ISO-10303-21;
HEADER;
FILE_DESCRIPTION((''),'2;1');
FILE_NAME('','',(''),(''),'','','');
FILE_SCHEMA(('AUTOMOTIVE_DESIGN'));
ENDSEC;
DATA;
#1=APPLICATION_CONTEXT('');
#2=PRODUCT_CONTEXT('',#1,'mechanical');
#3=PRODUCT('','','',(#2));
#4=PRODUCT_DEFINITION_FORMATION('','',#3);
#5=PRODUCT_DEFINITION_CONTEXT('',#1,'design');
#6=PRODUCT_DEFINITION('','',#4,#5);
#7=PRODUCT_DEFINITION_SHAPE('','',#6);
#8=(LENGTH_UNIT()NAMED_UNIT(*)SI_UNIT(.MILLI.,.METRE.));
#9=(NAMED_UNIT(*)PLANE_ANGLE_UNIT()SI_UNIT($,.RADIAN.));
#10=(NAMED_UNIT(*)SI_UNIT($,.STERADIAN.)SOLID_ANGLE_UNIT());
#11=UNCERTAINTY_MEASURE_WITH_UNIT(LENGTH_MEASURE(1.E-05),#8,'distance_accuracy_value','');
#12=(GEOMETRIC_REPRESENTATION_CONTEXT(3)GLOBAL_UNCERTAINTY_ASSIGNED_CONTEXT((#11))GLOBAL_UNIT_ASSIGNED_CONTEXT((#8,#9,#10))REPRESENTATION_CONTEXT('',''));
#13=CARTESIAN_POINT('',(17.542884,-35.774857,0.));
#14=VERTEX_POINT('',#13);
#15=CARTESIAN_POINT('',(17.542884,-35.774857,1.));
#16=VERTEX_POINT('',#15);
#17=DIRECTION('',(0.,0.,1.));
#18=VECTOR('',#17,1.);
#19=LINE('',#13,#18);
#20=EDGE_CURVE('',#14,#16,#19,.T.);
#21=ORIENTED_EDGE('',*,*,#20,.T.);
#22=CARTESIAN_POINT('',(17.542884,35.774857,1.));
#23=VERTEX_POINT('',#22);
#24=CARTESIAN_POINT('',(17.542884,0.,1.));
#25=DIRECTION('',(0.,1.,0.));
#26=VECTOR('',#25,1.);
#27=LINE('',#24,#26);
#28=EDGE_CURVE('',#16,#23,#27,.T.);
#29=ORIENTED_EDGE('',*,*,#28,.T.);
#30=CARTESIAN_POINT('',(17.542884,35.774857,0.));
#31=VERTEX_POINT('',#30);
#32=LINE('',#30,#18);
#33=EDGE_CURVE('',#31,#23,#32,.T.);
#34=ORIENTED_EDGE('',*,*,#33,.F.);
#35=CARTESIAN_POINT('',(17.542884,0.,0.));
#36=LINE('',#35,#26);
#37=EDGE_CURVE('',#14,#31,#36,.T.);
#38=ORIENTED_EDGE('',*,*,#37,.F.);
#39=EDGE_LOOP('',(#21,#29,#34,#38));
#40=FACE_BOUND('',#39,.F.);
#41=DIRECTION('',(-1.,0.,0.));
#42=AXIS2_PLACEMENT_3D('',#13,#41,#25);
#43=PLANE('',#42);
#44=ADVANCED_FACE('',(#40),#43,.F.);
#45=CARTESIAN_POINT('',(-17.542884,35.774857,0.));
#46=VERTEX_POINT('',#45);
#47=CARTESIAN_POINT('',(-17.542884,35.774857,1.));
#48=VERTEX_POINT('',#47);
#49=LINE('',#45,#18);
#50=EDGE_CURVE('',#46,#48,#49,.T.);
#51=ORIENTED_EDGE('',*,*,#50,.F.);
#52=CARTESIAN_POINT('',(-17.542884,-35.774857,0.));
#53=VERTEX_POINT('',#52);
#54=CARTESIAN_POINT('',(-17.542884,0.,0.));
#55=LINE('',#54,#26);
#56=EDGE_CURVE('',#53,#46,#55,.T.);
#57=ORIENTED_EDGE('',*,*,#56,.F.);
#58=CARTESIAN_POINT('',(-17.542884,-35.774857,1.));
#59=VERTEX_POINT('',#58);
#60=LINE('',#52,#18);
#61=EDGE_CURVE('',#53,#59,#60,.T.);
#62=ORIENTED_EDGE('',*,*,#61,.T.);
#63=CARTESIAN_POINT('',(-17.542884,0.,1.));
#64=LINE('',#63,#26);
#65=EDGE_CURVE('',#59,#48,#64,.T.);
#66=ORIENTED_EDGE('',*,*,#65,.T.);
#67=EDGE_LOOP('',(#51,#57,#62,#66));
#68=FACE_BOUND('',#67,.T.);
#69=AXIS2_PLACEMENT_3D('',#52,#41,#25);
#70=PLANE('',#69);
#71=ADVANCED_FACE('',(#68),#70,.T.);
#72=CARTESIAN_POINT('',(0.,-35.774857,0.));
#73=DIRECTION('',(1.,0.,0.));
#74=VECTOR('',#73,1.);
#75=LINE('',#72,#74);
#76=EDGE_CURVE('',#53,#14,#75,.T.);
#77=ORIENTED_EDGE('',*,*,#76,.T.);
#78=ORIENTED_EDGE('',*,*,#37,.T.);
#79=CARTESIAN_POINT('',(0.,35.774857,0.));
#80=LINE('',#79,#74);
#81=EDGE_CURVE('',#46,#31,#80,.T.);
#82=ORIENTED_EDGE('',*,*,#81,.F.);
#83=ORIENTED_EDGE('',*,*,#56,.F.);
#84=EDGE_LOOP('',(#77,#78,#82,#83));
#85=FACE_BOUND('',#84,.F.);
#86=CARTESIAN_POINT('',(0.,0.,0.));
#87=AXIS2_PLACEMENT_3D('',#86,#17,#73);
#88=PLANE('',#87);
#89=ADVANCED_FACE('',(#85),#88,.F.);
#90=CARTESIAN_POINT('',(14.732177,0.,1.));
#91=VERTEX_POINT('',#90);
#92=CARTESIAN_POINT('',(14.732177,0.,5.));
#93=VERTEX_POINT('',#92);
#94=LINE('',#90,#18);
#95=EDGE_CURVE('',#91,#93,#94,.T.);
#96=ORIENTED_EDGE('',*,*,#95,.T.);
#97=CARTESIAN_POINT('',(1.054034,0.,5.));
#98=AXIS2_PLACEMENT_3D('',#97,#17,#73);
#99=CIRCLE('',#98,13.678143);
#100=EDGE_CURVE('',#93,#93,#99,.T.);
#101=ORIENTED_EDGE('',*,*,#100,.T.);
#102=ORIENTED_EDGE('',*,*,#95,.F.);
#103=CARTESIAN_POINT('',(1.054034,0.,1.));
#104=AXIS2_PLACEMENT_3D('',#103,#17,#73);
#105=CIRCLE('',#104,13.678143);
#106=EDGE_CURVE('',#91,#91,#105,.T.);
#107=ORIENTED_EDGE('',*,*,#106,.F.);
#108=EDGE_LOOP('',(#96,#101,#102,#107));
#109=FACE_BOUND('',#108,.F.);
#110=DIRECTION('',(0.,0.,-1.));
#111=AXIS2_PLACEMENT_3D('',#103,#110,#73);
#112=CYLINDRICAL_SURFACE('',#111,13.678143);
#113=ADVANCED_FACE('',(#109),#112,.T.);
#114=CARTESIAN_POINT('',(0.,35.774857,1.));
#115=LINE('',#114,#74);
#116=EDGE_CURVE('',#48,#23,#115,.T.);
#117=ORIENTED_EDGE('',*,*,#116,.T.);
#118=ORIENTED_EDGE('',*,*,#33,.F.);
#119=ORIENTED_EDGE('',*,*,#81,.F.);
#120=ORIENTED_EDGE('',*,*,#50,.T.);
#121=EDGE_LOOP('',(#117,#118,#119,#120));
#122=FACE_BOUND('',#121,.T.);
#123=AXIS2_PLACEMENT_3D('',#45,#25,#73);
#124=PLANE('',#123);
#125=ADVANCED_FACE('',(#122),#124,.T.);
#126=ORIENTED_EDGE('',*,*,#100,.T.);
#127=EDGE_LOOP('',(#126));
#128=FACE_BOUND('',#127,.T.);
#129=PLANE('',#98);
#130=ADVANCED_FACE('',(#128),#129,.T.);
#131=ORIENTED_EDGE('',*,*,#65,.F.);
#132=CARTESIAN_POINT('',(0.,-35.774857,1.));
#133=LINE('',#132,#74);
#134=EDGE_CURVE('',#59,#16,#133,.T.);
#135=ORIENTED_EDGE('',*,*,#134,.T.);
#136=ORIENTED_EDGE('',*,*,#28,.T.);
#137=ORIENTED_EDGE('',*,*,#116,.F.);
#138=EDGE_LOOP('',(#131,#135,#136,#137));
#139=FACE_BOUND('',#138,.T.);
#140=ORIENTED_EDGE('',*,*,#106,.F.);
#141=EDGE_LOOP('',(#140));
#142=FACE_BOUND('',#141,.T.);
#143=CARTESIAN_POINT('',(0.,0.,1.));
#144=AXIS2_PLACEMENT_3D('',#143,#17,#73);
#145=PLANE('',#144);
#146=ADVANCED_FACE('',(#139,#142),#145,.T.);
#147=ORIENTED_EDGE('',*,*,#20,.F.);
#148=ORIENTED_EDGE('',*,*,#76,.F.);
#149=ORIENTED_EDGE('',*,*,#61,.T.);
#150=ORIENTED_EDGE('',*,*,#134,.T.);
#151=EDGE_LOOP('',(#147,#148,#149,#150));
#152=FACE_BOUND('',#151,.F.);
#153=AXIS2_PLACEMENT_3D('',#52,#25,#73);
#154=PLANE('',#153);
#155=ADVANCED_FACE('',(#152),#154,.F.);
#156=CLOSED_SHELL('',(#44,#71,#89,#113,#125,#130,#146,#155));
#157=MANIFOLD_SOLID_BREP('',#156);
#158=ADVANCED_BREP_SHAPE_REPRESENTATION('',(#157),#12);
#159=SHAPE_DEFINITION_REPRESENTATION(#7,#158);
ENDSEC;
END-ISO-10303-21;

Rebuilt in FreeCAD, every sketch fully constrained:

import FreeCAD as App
import Part
import Sketcher
from FreeCAD import Vector

doc = App.newDocument("Part")
body = doc.addObject("PartDesign::Body", "Body")

# Sketch on XY plane
sketch1 = body.newObject("Sketcher::SketchObject", "Sketch")
sketch1.AttachmentSupport = (doc.getObject("XY_Plane"), [""])
sketch1.MapMode = "FlatFace"
sketch1.addGeometry(Part.LineSegment(Vector(-18, 36, 0), Vector(-18, -36, 0)), False)
sketch1.addGeometry(Part.LineSegment(Vector(-18, -36, 0), Vector(18, -36, 0)), False)
sketch1.addGeometry(Part.LineSegment(Vector(18, -36, 0), Vector(18, 36, 0)), False)
sketch1.addGeometry(Part.LineSegment(Vector(18, 36, 0), Vector(-18, 36, 0)), False)
sketch1.addConstraint(Sketcher.Constraint("Coincident", 0, 2, 1, 1))
sketch1.addConstraint(Sketcher.Constraint("Coincident", 1, 2, 2, 1))
sketch1.addConstraint(Sketcher.Constraint("Coincident", 2, 2, 3, 1))
sketch1.addConstraint(Sketcher.Constraint("Coincident", 3, 2, 0, 1))
sketch1.addConstraint(Sketcher.Constraint("Vertical", 0))
sketch1.addConstraint(Sketcher.Constraint("Horizontal", 1))
sketch1.addConstraint(Sketcher.Constraint("Vertical", 2))
sketch1.addConstraint(Sketcher.Constraint("Horizontal", 3))
sketch1.addConstraint(Sketcher.Constraint("Symmetric", 0, 2, 2, 2, -1, 1))
sketch1.addConstraint(Sketcher.Constraint("DistanceX", 1, 1, 1, 2, 35.085768))
sketch1.addConstraint(Sketcher.Constraint("DistanceY", 0, 2, 0, 1, 71.549714))
pad1 = body.newObject("PartDesign::Pad", "Pad")
pad1.Profile = sketch1
pad1.Length = 1

# Sketch on XY plane
sketch2 = body.newObject("Sketcher::SketchObject", "Sketch001")
sketch2.AttachmentSupport = (doc.getObject("XY_Plane"), [""])
sketch2.MapMode = "FlatFace"
sketch2.AttachmentOffset = App.Placement(Vector(0, 0, 1), App.Rotation())
sketch2.addGeometry(Part.Circle(Vector(1, 0, 0), Vector(0, 0, 1), 14), False)
sketch2.addConstraint(Sketcher.Constraint("PointOnObject", 0, 3, -1))
sketch2.addConstraint(Sketcher.Constraint("Diameter", 0, 27.356286))
sketch2.addConstraint(Sketcher.Constraint("DistanceX", -1, 1, 0, 3, 1.054034))
pad2 = body.newObject("PartDesign::Pad", "Pad001")
pad2.Profile = sketch2
pad2.Length = 4

doc.recompute()
